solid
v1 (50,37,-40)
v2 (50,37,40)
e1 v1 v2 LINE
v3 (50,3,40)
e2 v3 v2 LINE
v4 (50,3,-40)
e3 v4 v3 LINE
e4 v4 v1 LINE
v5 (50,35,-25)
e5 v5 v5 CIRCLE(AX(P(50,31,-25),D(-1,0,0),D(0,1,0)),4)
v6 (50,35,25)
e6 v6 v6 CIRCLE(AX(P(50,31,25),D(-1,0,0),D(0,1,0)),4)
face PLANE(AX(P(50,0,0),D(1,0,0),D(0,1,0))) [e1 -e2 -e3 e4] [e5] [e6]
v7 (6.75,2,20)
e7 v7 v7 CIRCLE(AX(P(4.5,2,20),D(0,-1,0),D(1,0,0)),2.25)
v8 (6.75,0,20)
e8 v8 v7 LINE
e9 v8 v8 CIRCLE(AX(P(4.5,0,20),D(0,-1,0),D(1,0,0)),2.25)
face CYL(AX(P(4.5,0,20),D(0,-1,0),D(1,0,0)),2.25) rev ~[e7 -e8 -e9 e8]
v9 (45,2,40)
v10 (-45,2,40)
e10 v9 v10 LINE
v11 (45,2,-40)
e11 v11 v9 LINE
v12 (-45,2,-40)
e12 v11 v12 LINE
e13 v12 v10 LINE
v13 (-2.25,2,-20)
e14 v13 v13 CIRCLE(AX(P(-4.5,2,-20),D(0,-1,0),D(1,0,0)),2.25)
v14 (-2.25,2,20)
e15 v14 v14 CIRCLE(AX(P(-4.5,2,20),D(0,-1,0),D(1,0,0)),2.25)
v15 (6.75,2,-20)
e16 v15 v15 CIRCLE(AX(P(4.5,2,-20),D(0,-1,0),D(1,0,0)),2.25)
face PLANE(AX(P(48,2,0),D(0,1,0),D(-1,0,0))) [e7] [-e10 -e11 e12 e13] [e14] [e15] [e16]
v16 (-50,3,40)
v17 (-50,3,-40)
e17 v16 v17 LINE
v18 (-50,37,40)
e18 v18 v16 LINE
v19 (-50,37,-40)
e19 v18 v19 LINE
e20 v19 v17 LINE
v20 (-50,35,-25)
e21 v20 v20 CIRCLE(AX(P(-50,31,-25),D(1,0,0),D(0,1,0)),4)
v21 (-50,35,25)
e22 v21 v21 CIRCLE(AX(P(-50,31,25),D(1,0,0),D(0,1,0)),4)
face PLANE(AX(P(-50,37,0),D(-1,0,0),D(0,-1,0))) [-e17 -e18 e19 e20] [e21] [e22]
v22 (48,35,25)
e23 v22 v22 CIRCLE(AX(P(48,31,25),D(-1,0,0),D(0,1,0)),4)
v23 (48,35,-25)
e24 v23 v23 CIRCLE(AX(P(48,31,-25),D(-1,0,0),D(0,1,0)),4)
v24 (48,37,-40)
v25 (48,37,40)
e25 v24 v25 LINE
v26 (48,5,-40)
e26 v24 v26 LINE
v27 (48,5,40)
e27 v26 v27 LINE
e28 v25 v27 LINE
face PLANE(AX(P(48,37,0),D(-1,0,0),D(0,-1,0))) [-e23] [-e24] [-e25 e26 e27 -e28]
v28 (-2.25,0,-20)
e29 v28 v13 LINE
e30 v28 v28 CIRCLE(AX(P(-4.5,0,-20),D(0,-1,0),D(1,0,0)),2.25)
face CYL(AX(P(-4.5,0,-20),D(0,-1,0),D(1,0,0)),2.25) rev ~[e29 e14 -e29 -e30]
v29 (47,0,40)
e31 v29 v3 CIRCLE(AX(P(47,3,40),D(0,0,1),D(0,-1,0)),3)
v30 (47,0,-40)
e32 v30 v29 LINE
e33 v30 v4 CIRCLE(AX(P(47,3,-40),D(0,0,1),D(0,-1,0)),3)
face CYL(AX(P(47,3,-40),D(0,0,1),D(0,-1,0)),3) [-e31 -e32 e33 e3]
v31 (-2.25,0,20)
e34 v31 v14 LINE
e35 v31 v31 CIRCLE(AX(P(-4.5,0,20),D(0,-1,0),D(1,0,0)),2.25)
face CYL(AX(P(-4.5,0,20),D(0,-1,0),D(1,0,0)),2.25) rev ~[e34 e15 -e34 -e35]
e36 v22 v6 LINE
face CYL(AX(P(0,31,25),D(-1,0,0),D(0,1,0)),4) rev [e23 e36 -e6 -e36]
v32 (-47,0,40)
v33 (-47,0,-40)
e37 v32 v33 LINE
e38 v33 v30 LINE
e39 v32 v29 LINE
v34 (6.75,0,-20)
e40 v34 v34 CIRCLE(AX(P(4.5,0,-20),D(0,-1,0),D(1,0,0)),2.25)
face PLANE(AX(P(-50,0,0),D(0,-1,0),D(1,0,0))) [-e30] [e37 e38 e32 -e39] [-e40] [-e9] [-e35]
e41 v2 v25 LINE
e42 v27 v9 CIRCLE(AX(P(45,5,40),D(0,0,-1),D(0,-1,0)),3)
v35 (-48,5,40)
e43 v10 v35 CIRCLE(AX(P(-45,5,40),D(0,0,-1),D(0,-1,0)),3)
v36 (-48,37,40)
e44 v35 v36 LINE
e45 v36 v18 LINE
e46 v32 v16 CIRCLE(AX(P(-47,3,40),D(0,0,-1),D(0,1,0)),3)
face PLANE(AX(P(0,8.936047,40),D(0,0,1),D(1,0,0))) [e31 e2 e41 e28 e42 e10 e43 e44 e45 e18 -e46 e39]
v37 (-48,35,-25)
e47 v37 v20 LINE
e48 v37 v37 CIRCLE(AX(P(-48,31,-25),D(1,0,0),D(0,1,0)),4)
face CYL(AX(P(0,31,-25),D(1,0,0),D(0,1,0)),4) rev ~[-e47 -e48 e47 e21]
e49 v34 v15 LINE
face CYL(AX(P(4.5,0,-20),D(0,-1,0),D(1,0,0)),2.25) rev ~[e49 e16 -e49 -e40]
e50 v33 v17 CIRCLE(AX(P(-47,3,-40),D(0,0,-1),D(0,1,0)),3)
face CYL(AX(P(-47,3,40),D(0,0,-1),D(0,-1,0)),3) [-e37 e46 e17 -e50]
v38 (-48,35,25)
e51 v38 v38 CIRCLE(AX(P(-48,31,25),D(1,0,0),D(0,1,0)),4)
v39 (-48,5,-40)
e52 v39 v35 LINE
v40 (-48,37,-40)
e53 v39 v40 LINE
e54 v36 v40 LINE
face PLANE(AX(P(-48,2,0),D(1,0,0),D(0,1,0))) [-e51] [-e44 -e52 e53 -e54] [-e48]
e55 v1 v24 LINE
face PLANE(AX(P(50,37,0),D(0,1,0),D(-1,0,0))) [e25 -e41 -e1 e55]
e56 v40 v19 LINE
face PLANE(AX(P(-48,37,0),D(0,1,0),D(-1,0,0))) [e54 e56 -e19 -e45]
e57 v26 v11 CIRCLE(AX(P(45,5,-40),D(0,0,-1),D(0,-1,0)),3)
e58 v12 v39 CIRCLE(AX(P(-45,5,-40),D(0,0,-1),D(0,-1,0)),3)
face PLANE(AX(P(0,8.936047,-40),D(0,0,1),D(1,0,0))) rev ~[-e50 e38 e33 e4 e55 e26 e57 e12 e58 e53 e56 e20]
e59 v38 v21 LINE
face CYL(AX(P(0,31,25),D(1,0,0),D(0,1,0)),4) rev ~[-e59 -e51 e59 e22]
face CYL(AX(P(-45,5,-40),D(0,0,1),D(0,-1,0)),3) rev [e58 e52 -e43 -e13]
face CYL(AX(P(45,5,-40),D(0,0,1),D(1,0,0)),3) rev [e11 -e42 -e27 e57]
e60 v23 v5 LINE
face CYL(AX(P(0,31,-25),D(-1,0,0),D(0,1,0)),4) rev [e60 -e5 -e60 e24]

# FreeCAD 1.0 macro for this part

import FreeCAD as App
import Part
import Sketcher
from FreeCAD import Vector


def edges_at(feature, points):
    """Names of the edges that pass closest to the given points."""
    edges = feature.Shape.Edges
    near = lambda p: min(range(len(edges)), key=lambda i: edges[i].distToShape(Part.Vertex(*p))[0])
    return sorted({f"Edge{near(p) + 1}" for p in points})

doc = App.newDocument("Part")
body = doc.addObject("PartDesign::Body", "Body")

sketch1 = doc.addObject("Sketcher::SketchObject", "Sketch")
body.addObject(sketch1)
sketch1.AttachmentSupport = (doc.XY_Plane, [""])
sketch1.MapMode = "FlatFace"
sketch1.addGeometry([
    Part.LineSegment(Vector(-50, 0, 0), Vector(50, 0, 0)),
    Part.LineSegment(Vector(50, 0, 0), Vector(50, 37, 0)),
    Part.LineSegment(Vector(50, 37, 0), Vector(48, 37, 0)),
    Part.LineSegment(Vector(48, 37, 0), Vector(48, 2, 0)),
    Part.LineSegment(Vector(48, 2, 0), Vector(-48, 2, 0)),
    Part.LineSegment(Vector(-48, 2, 0), Vector(-48, 37, 0)),
    Part.LineSegment(Vector(-48, 37, 0), Vector(-50, 37, 0)),
    Part.LineSegment(Vector(-50, 37, 0), Vector(-50, 0, 0)),
], False)
sketch1.addConstraint([
    Sketcher.Constraint("Coincident", 0, 2, 1, 1),
    Sketcher.Constraint("Coincident", 1, 2, 2, 1),
    Sketcher.Constraint("Coincident", 2, 2, 3, 1),
    Sketcher.Constraint("Coincident", 3, 2, 4, 1),
    Sketcher.Constraint("Coincident", 4, 2, 5, 1),
    Sketcher.Constraint("Coincident", 5, 2, 6, 1),
    Sketcher.Constraint("Coincident", 6, 2, 7, 1),
    Sketcher.Constraint("Coincident", 7, 2, 0, 1),
    Sketcher.Constraint("Horizontal", 0),
    Sketcher.Constraint("Vertical", 1),
    Sketcher.Constraint("Horizontal", 2),
    Sketcher.Constraint("Vertical", 3),
    Sketcher.Constraint("Horizontal", 4),
    Sketcher.Constraint("Vertical", 5),
    Sketcher.Constraint("Horizontal", 6),
    Sketcher.Constraint("Vertical", 7),
    Sketcher.Constraint("Symmetric", 0, 2, 7, 2, -1, 1),
    Sketcher.Constraint("Symmetric", 2, 2, 5, 2, -2),
    Sketcher.Constraint("DistanceX", 0, 1, 0, 2, 100.0),
    Sketcher.Constraint("DistanceX", 2, 2, 2, 1, 2.0),
    Sketcher.Constraint("DistanceY", 1, 1, 1, 2, 37.0),
    Sketcher.Constraint("DistanceY", 3, 2, 3, 1, 35.0),
])
pad1 = doc.addObject("PartDesign::Pad", "Pad")
body.addObject(pad1)
pad1.Profile = sketch1
pad1.Length = 80
pad1.Midplane = True

sketch2 = doc.addObject("Sketcher::SketchObject", "Sketch001")
body.addObject(sketch2)
sketch2.AttachmentSupport = (doc.YZ_Plane, [""])
sketch2.MapMode = "FlatFace"
sketch2.addGeometry([
    Part.Circle(Vector(31, 25, 0), Vector(0, 0, 1), 4),
    Part.Circle(Vector(31, -25, 0), Vector(0, 0, 1), 4),
], False)
sketch2.addConstraint([
    Sketcher.Constraint("Equal", 0, 1),
    Sketcher.Constraint("Symmetric", 0, 3, 1, 3, -1),
    Sketcher.Constraint("Diameter", 0, 8.0),
    Sketcher.Constraint("DistanceX", -1, 1, 0, 3, 31.0),
    Sketcher.Constraint("DistanceY", -1, 1, 0, 3, 25.0),
])
pocket1 = doc.addObject("PartDesign::Pocket", "Pocket")
body.addObject(pocket1)
pocket1.Profile = sketch2
pocket1.Type = "ThroughAll"
pocket1.Midplane = True

sketch3 = doc.addObject("Sketcher::SketchObject", "Sketch002")
body.addObject(sketch3)
sketch3.AttachmentSupport = (doc.XZ_Plane, [""])
sketch3.MapMode = "FlatFace"
sketch3.addGeometry([
    Part.Circle(Vector(-4.5, 20, 0), Vector(0, 0, 1), 2.2),
    Part.Circle(Vector(4.5, 20, 0), Vector(0, 0, 1), 2.2),
    Part.Circle(Vector(-4.5, -20, 0), Vector(0, 0, 1), 2.2),
    Part.Circle(Vector(4.5, -20, 0), Vector(0, 0, 1), 2.2),
], False)
sketch3.addConstraint([
    Sketcher.Constraint("Equal", 0, 1),
    Sketcher.Constraint("Equal", 1, 2),
    Sketcher.Constraint("Equal", 2, 3),
    Sketcher.Constraint("Symmetric", 1, 3, 2, 3, -1, 1),
    Sketcher.Constraint("Symmetric", 0, 3, 3, 3, -1, 1),
    Sketcher.Constraint("Symmetric", 0, 3, 1, 3, -2),
    Sketcher.Constraint("Diameter", 0, 4.5),
    Sketcher.Constraint("DistanceY", -1, 1, 0, 3, 20.0),
    Sketcher.Constraint("DistanceX", 0, 3, 1, 3, 9.0),
])
pocket2 = doc.addObject("PartDesign::Pocket", "Pocket001")
body.addObject(pocket2)
pocket2.Profile = sketch3
pocket2.Type = "ThroughAll"
pocket2.Midplane = True
doc.recompute()

fillet = doc.addObject("PartDesign::Fillet", "Fillet")
body.addObject(fillet)
fillet.Base = (pocket2, edges_at(pocket2, [
    (48, 2, 0),
    (-48, 2, 0),
    (50, 0, 0),
    (-50, 0, 0),
]))
fillet.Radius = 3

doc.recompute()
